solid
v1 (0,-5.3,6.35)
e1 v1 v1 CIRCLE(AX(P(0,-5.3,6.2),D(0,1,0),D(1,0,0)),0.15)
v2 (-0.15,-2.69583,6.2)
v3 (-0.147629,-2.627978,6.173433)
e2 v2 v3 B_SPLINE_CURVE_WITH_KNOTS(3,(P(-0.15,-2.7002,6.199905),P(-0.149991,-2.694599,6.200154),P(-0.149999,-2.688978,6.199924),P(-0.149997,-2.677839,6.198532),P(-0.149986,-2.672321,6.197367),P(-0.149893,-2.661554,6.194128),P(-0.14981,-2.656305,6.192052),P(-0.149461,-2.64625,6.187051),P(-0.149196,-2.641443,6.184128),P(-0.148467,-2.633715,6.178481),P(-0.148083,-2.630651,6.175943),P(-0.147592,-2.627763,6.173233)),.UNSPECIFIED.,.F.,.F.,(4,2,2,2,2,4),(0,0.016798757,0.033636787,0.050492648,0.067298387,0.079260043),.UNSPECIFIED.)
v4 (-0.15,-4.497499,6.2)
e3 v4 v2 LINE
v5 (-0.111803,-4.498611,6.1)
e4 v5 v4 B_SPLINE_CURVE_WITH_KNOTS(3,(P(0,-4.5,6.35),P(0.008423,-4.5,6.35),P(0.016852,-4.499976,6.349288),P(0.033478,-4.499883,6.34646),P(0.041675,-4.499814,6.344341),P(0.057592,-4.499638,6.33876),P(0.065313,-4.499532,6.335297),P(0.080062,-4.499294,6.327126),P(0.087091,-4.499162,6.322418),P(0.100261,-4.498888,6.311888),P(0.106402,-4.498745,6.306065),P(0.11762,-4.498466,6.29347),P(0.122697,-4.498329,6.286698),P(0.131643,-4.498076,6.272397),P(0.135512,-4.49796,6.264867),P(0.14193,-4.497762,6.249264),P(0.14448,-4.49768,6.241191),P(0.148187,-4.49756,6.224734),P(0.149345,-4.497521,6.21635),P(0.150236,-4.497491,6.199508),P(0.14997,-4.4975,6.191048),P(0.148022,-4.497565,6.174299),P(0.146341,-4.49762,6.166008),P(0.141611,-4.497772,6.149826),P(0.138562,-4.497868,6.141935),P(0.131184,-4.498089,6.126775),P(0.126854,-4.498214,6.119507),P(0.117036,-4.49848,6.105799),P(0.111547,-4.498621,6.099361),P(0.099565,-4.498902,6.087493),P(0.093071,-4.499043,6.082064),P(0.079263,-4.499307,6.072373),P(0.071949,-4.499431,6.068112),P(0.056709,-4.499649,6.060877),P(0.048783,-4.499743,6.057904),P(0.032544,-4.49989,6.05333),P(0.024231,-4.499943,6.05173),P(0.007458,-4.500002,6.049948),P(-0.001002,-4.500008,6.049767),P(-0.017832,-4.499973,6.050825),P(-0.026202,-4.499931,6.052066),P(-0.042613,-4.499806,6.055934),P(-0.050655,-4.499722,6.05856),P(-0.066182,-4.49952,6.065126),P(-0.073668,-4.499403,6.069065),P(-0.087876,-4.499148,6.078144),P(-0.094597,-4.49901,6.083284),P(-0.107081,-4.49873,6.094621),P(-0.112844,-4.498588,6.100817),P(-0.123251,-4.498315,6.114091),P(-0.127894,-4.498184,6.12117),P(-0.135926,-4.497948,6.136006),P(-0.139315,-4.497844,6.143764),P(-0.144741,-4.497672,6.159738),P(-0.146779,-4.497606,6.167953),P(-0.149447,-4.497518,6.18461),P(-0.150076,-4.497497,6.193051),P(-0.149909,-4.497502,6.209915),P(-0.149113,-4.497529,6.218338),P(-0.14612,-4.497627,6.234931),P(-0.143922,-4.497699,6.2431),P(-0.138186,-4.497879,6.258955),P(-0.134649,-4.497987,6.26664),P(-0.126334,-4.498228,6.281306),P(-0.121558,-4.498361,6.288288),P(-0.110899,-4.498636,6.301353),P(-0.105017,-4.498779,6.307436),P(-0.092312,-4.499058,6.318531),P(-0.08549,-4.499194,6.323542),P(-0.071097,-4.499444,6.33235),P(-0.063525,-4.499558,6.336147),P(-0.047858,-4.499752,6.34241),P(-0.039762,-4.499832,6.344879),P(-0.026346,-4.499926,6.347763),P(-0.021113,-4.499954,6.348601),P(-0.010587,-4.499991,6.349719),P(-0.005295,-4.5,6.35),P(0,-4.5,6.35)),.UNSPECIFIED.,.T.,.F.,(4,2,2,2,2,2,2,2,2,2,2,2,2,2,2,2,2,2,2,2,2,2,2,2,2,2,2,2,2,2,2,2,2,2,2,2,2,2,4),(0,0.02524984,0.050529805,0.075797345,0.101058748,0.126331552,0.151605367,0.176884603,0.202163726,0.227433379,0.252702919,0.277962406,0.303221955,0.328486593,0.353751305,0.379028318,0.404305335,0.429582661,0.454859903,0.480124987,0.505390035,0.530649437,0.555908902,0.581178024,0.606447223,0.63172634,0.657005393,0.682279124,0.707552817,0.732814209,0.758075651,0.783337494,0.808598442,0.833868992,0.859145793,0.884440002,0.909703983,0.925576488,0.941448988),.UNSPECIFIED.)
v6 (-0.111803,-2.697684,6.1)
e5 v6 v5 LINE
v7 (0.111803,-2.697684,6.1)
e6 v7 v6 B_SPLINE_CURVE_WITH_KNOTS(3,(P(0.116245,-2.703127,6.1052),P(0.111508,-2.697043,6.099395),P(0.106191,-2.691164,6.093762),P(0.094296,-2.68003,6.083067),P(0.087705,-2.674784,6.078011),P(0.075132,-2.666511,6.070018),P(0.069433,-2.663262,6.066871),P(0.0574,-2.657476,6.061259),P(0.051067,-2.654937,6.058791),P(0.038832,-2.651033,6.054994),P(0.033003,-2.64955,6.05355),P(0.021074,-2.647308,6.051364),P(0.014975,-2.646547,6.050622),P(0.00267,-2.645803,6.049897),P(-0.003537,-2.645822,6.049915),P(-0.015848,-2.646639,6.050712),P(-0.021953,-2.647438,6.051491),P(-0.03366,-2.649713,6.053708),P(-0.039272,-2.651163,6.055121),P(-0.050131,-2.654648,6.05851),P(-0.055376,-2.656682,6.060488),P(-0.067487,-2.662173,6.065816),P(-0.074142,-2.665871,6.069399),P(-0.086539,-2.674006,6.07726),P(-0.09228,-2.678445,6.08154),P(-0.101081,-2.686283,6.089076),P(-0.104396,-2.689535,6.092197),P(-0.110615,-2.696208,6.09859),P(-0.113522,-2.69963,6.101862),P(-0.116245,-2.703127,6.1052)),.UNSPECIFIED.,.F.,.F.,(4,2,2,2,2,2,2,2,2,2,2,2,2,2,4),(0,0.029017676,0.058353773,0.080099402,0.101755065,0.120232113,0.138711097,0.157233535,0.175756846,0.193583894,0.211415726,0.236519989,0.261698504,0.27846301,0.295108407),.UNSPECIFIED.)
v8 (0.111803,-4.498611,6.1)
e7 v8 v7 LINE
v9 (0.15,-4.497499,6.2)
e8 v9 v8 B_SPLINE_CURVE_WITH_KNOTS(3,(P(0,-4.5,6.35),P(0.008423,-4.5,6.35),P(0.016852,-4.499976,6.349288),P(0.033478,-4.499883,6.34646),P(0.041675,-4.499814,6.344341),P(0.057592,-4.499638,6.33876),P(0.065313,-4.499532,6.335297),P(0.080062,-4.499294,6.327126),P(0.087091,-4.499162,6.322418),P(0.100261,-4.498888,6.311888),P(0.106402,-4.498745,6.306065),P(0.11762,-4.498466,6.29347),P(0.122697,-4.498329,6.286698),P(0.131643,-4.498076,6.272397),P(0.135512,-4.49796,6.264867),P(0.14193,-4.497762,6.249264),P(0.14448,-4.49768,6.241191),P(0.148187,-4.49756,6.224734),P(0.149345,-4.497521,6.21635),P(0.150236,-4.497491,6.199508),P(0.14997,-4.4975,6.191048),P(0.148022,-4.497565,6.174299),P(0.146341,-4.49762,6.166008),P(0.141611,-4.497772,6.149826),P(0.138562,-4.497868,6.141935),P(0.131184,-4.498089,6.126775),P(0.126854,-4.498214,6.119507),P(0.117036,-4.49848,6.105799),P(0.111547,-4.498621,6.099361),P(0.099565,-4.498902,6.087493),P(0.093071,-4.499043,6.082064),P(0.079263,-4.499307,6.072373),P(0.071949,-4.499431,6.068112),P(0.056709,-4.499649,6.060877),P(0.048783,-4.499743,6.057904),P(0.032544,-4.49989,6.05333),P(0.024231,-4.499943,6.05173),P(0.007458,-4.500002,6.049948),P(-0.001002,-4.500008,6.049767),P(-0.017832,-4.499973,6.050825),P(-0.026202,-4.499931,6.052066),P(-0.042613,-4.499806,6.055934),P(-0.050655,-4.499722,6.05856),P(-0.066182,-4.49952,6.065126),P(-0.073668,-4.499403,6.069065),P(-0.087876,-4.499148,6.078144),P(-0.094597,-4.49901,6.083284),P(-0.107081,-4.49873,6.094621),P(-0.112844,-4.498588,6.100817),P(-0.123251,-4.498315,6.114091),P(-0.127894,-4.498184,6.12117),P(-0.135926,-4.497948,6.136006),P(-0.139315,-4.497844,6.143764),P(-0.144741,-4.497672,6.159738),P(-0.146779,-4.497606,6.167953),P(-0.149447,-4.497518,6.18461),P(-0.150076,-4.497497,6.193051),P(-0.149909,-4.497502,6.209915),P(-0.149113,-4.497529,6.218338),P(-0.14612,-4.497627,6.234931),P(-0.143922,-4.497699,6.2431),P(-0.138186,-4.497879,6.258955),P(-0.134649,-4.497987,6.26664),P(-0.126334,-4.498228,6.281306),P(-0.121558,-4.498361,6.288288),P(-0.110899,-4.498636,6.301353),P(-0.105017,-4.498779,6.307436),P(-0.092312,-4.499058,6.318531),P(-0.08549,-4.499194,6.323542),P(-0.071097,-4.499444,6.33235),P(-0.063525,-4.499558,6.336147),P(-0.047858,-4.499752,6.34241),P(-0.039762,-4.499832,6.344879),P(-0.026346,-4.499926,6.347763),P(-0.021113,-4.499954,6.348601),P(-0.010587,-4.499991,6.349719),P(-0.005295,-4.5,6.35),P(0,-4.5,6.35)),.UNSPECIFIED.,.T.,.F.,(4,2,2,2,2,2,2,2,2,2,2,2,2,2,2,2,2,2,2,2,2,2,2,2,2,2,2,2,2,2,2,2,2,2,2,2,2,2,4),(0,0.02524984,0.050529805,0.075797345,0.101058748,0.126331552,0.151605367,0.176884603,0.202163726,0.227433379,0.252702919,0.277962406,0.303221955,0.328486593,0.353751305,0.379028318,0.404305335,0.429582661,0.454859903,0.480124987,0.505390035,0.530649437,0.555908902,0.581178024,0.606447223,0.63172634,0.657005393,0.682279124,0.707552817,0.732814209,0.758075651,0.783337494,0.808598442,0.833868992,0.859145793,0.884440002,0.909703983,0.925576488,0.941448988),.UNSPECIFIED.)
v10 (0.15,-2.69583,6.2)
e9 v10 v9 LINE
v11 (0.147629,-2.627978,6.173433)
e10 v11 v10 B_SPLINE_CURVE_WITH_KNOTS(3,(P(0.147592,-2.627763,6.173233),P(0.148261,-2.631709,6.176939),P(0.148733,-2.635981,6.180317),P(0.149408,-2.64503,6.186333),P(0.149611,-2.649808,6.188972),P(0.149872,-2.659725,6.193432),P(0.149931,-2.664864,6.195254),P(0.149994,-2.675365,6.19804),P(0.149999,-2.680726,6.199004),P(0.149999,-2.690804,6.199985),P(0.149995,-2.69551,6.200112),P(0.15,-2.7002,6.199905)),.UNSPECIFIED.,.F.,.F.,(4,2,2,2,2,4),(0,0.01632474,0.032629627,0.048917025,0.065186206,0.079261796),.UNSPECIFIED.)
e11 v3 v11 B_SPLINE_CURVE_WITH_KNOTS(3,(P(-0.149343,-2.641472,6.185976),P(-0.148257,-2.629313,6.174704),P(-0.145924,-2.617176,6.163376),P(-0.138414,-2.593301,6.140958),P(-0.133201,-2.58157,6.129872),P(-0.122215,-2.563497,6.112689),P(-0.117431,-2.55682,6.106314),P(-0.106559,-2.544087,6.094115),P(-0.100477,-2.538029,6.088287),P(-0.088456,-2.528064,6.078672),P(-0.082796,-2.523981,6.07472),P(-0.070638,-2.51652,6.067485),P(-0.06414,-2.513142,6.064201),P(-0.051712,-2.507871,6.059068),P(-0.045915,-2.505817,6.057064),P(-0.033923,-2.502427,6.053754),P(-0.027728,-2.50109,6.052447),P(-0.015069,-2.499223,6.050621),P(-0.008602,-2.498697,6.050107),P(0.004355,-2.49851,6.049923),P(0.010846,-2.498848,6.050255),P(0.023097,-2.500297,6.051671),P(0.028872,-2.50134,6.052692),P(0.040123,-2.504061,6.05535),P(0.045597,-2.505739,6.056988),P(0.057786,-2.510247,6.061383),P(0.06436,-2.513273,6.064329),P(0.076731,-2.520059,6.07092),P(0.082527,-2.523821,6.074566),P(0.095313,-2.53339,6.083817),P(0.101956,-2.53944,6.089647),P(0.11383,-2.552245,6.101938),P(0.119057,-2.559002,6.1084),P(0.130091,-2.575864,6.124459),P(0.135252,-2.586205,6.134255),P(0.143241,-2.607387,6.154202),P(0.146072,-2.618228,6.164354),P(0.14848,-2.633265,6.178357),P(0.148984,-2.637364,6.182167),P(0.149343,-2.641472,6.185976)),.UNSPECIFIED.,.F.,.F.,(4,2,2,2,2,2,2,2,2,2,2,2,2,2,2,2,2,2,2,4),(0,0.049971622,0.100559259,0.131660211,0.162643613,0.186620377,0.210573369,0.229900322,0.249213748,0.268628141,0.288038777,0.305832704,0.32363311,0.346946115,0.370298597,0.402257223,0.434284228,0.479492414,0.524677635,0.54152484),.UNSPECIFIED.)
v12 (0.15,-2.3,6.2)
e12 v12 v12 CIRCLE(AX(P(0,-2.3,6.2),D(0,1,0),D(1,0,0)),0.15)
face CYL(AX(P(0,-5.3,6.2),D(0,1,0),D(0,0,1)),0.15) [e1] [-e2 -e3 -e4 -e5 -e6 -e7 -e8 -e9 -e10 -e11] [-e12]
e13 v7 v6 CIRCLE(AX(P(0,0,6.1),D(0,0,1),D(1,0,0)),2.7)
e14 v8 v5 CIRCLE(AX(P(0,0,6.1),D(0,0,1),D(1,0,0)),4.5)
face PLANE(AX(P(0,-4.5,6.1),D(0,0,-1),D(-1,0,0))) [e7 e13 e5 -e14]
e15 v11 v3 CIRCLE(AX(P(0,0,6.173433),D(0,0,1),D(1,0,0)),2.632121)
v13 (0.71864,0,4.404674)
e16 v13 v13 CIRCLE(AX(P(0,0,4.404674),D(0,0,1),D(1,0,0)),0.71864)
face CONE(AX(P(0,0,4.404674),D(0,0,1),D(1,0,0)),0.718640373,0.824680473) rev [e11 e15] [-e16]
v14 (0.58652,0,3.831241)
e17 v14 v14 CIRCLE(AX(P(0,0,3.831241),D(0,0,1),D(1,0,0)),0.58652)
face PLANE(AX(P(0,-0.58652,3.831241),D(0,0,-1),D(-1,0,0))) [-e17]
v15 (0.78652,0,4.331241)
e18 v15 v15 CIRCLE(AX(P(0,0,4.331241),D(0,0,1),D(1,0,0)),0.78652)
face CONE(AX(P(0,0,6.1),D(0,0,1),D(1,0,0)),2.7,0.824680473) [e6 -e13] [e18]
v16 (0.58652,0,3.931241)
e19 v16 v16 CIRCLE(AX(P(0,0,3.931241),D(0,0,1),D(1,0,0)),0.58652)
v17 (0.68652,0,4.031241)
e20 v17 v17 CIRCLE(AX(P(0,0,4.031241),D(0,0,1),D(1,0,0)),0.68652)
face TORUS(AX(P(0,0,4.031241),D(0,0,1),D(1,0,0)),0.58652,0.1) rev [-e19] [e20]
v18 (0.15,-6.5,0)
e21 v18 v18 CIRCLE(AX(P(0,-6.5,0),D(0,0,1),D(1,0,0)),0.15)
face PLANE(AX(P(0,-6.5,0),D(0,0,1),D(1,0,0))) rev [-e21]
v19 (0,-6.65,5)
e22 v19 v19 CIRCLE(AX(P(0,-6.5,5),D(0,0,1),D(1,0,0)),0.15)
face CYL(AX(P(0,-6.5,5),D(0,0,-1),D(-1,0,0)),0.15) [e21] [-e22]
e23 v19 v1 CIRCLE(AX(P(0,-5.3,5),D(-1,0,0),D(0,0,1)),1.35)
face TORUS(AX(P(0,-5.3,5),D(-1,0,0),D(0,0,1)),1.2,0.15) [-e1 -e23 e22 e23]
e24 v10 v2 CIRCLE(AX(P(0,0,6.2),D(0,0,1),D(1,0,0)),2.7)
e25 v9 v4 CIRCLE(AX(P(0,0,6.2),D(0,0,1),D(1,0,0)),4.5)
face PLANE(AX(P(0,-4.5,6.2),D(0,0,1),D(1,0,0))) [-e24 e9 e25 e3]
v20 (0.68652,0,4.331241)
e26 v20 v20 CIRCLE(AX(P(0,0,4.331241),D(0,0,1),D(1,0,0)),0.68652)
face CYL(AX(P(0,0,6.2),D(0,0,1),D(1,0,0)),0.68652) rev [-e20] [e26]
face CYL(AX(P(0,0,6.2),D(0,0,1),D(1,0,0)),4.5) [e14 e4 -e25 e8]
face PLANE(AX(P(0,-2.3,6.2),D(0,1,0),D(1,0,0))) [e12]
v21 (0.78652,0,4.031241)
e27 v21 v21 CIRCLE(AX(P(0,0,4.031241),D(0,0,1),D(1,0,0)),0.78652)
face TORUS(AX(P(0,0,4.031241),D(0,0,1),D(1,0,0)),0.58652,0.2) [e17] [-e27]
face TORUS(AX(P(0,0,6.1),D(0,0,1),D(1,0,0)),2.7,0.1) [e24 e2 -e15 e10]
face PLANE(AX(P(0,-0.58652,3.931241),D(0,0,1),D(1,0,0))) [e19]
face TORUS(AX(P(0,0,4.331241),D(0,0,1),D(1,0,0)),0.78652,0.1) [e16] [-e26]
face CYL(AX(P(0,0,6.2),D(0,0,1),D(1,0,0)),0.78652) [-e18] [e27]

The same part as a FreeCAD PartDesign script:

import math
import FreeCAD as App
import Part
import Sketcher
from FreeCAD import Vector
Q = App.Units.Quantity

doc = App.newDocument("Part")
body = doc.addObject("PartDesign::Body", "Body")

# Sketch on XY plane
sketch1 = body.newObject("Sketcher::SketchObject", "Sketch")
sketch1.AttachmentSupport = (doc.getObject("XY_Plane"), [""])
sketch1.MapMode = "FlatFace"
sketch1.addGeometry(Part.Circle(Vector(0, -6.5, 0), Vector(0, 0, 1), 0.15), False)
sketch1.addConstraint([
    Sketcher.Constraint("PointOnObject", 0, 3, -2),
    Sketcher.Constraint("Diameter", 0, Q("0.3 mm")),
    Sketcher.Constraint("DistanceY", 0, 3, -1, 1, Q("6.5 mm")),
])

# Sketch on YZ plane
sketch2 = body.newObject("Sketcher::SketchObject", "Sketch001")
sketch2.AttachmentSupport = (doc.getObject("YZ_Plane"), [""])
sketch2.MapMode = "FlatFace"
sketch2.addGeometry([
    Part.LineSegment(Vector(-6.5, 0, 0), Vector(-6.5, 5, 0)),
    Part.ArcOfCircle(Part.Circle(Vector(-5.3, 5, 0), Vector(0, 0, 1), 1.2), math.radians(90), math.radians(180)),
    Part.LineSegment(Vector(-5.3, 6.2, 0), Vector(-2.3, 6.2, 0)),
], False)
sketch2.addConstraint([
    Sketcher.Constraint("Tangent", 0, 2, 1, 2),
    Sketcher.Constraint("Tangent", 1, 1, 2, 1),
    Sketcher.Constraint("Vertical", 0),
    Sketcher.Constraint("Horizontal", 2),
    Sketcher.Constraint("PointOnObject", 0, 1, -1),
    Sketcher.Constraint("Radius", 1, Q("1.2 mm")),
    Sketcher.Constraint("DistanceX", 2, 1, 2, 2, Q("3 mm")),
    Sketcher.Constraint("DistanceY", 0, 1, 0, 2, Q("5 mm")),
    Sketcher.Constraint("DistanceX", 1, 3, -1, 1, Q("5.3 mm")),
])
doc.recompute()

additivepipe = body.newObject("PartDesign::AdditivePipe", "AdditivePipe")
additivepipe.Profile = sketch1
additivepipe.Spine = (sketch2, ["Edge1", "Edge2", "Edge3"])

# Sketch on YZ plane
sketch3 = body.newObject("Sketcher::SketchObject", "Sketch002")
sketch3.AttachmentSupport = (doc.getObject("YZ_Plane"), [""])
sketch3.MapMode = "FlatFace"
sketch3.addGeometry([
    Part.LineSegment(Vector(-2.7, 6.2, 0), Vector(-4.5, 6.2, 0)),  # 0
    Part.LineSegment(Vector(-4.5, 6.2, 0), Vector(-4.5, 6.1, 0)),  # 1
    Part.LineSegment(Vector(-4.5, 6.1, 0), Vector(-2.7, 6.1, 0)),  # 2
    Part.LineSegment(Vector(-2.7, 6.1, 0), Vector(-0.78652, 4.331241, 0)),  # 3
    Part.LineSegment(Vector(-0.78652, 4.331241, 0), Vector(-0.78652, 4.031241, 0)),  # 4
    Part.ArcOfCircle(Part.Circle(Vector(-0.58652, 4.031241, 0), Vector(0, 0, 1), 0.2), math.radians(-180), math.radians(-90)),  # 5
    Part.LineSegment(Vector(-0.58652, 3.831241, 0), Vector(0, 3.831241, 0)),  # 6
    Part.LineSegment(Vector(0, 3.831241, 0), Vector(0, 3.931241, 0)),  # 7
    Part.LineSegment(Vector(0, 3.931241, 0), Vector(-0.58652, 3.931241, 0)),  # 8
    Part.ArcOfCircle(Part.Circle(Vector(-0.58652, 4.031241, 0), Vector(0, 0, 1), 0.1), math.radians(180), math.radians(270)),  # 9
    Part.LineSegment(Vector(-0.68652, 4.031241, 0), Vector(-0.68652, 4.331241, 0)),  # 10
    Part.ArcOfCircle(Part.Circle(Vector(-0.78652, 4.331241, 0), Vector(0, 0, 1), 0.1), math.radians(0.000001), math.radians(47.250709)),  # 11
    Part.LineSegment(Vector(-0.71864, 4.404674, 0), Vector(-2.632121, 6.173433, 0)),  # 12
    Part.ArcOfCircle(Part.Circle(Vector(-2.7, 6.1, 0), Vector(0, 0, 1), 0.1), math.radians(47.250712), math.radians(89.999999)),  # 13
], False)
sketch3.addConstraint([
    Sketcher.Constraint("Coincident", 0, 2, 1, 1),
    Sketcher.Constraint("Coincident", 1, 2, 2, 1),
    Sketcher.Constraint("Coincident", 2, 2, 3, 1),
    Sketcher.Constraint("Coincident", 3, 2, 4, 1),
    Sketcher.Constraint("Tangent", 4, 2, 5, 1),
    Sketcher.Constraint("Tangent", 5, 2, 6, 1),
    Sketcher.Constraint("Coincident", 6, 2, 7, 1),
    Sketcher.Constraint("Coincident", 7, 2, 8, 1),
    Sketcher.Constraint("Tangent", 8, 2, 9, 2),
    Sketcher.Constraint("Tangent", 9, 1, 10, 1),
    Sketcher.Constraint("Tangent", 10, 2, 11, 1),
    Sketcher.Constraint("Tangent", 11, 2, 12, 1),
    Sketcher.Constraint("Tangent", 12, 2, 13, 1),
    Sketcher.Constraint("Tangent", 13, 2, 0, 1),
    Sketcher.Constraint("Horizontal", 0),
    Sketcher.Constraint("Vertical", 1),
    Sketcher.Constraint("Horizontal", 2),
    Sketcher.Constraint("Vertical", 4),
    Sketcher.Constraint("Horizontal", 6),
    Sketcher.Constraint("Vertical", 7),
    Sketcher.Constraint("Horizontal", 8),
    Sketcher.Constraint("Vertical", 10),
    Sketcher.Constraint("Coincident", 9, 3, 5, 3),
    Sketcher.Constraint("Coincident", 2, 2, 13, 3),
    Sketcher.Constraint("Coincident", 3, 2, 11, 3),
    Sketcher.Constraint("Equal", 9, 11),
    Sketcher.Constraint("Equal", 11, 13),
    Sketcher.Constraint("PointOnObject", 6, 2, -2),
    Sketcher.Constraint("Radius", 5, Q("0.2 mm")),
    Sketcher.Constraint("DistanceX", 0, 2, 0, 1, Q("1.8 mm")),
    Sketcher.Constraint("DistanceY", 4, 2, 4, 1, Q("0.3 mm")),
    Sketcher.Constraint("DistanceX", 13, 3, -1, 1, Q("2.7 mm")),
    Sketcher.Constraint("DistanceY", -1, 1, 13, 3, Q("6.1 mm")),
    Sketcher.Constraint("DistanceX", 6, 1, 6, 2, Q("0.58652 mm")),
    Sketcher.Constraint("DistanceY", -1, 1, 5, 3, Q("4.031241 mm")),
])
revolution = body.newObject("PartDesign::Revolution", "Revolution")
revolution.Profile = sketch3
revolution.ReferenceAxis = (sketch3, ["V_Axis"])
revolution.Angle = 360

doc.recompute()
